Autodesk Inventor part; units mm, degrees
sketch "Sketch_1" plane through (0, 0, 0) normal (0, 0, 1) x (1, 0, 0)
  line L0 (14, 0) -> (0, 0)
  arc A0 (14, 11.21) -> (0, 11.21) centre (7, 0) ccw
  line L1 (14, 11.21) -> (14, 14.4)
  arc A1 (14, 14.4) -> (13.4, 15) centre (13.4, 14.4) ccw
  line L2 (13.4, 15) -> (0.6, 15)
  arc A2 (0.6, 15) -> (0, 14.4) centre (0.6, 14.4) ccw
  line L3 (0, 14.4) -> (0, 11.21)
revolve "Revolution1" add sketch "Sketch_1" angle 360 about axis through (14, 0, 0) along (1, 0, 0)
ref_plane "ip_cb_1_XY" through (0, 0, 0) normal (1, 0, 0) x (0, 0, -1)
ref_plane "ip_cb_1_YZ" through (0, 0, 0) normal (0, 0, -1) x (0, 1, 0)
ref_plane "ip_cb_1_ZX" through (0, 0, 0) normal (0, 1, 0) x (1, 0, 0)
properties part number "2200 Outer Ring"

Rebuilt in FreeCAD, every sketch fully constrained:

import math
import FreeCAD as App
import Part
import Sketcher
from FreeCAD import Vector
Q = App.Units.Quantity

doc = App.newDocument("Part")
body = doc.addObject("PartDesign::Body", "Body")

# Sketch on XY plane
sketch1 = doc.addObject("Sketcher::SketchObject", "Sketch")
body.addObject(sketch1)
sketch1.AttachmentSupport = (doc.XY_Plane, [""])
sketch1.MapMode = "FlatFace"
sketch1.addGeometry([
    Part.ArcOfCircle(Part.Circle(Vector(7, 0, 0), Vector(0, 0, 1), 13.216055), math.radians(58.017594), math.radians(121.982406)),  # 0
    Part.LineSegment(Vector(14, 11.21, 0), Vector(14, 14.4, 0)),  # 1
    Part.ArcOfCircle(Part.Circle(Vector(13.4, 14.4, 0), Vector(0, 0, 1), 0.6), math.radians(0), math.radians(90)),  # 2
    Part.LineSegment(Vector(13.4, 15, 0), Vector(0.6, 15, 0)),  # 3
    Part.ArcOfCircle(Part.Circle(Vector(0.6, 14.4, 0), Vector(0, 0, 1), 0.6), math.radians(90), math.radians(180)),  # 4
    Part.LineSegment(Vector(0, 14.4, 0), Vector(0, 11.21, 0)),  # 5
], False)
sketch1.addConstraint([
    Sketcher.Constraint("Coincident", 0, 1, 1, 1),
    Sketcher.Constraint("Tangent", 1, 2, 2, 1),
    Sketcher.Constraint("Tangent", 2, 2, 3, 1),
    Sketcher.Constraint("Tangent", 3, 2, 4, 1),
    Sketcher.Constraint("Tangent", 4, 2, 5, 1),
    Sketcher.Constraint("Coincident", 5, 2, 0, 2),
    Sketcher.Constraint("Vertical", 1),
    Sketcher.Constraint("Horizontal", 3),
    Sketcher.Constraint("Vertical", 5),
    Sketcher.Constraint("Equal", 2, 4),
    Sketcher.Constraint("PointOnObject", 0, 3, -1),
    Sketcher.Constraint("PointOnObject", 4, 2, -2),
    Sketcher.Constraint("Horizontal", 0, 1, 5, 2),
    Sketcher.Constraint("Radius", 2, Q("0.6 mm")),
    Sketcher.Constraint("DistanceX", 3, 2, 3, 1, Q("12.8 mm")),
    Sketcher.Constraint("DistanceY", -1, 1, 2, 2, Q("15 mm")),
    Sketcher.Constraint("Radius", 0, Q("13.216 mm")),
])
revolution = doc.addObject("PartDesign::Revolution", "Revolution")
body.addObject(revolution)
revolution.Profile = sketch1
revolution.ReferenceAxis = (sketch1, ["H_Axis"])
revolution.Angle = 360

doc.recompute()
